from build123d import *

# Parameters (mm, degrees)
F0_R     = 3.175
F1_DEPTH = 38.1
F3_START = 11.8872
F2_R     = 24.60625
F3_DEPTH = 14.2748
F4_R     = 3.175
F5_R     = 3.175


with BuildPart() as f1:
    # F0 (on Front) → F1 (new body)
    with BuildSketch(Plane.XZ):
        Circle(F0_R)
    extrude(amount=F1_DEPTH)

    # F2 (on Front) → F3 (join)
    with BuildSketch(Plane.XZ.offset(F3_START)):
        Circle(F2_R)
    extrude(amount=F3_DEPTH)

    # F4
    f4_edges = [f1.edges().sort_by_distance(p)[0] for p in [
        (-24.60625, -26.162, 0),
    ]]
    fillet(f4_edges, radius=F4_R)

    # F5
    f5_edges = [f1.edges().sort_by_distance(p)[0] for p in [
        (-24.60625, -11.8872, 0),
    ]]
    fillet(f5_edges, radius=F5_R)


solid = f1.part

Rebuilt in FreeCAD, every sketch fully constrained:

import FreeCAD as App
import Part
import Sketcher
Q = App.Units.Quantity


def edges_at(feature, points):
    """Names of the edges that pass closest to the given points."""
    edges = feature.Shape.Edges
    near = lambda p: min(range(len(edges)), key=lambda i: edges[i].distToShape(Part.Vertex(*p))[0])
    return sorted({f"Edge{near(p) + 1}" for p in points})

doc = App.newDocument("Part")
body = doc.addObject("PartDesign::Body", "Body")

# Sketch on XZ plane
sketch1 = body.newObject("Sketcher::SketchObject", "Sketch")
sketch1.AttachmentSupport = (doc.getObject("XZ_Plane"), [""])
sketch1.MapMode = "FlatFace"
sketch1.addGeometry(Part.Circle(App.Vector(0, 0, 0), App.Vector(0, 0, 1), 3.175), False)
sketch1.addConstraint([
    Sketcher.Constraint("Coincident", 0, 3, -1, 1),
    Sketcher.Constraint("Diameter", 0, Q("0.25 in")),
])
pad1 = body.newObject("PartDesign::Pad", "Pad")
pad1.Profile = sketch1
pad1.Length = Q("1.5 in")

# Sketch on XZ plane
sketch2 = body.newObject("Sketcher::SketchObject", "Sketch001")
sketch2.AttachmentSupport = (doc.getObject("XZ_Plane"), [""])
sketch2.MapMode = "FlatFace"
sketch2.AttachmentOffset = App.Placement(App.Vector(0, 0, 0.468 * 25.4), App.Rotation())
sketch2.addGeometry(Part.Circle(App.Vector(0, 0, 0), App.Vector(0, 0, 1), 24.60625), False)
sketch2.addConstraint([
    Sketcher.Constraint("Coincident", 0, 3, -1, 1),
    Sketcher.Constraint("Diameter", 0, Q("1.9375 in")),
])
pad2 = body.newObject("PartDesign::Pad", "Pad001")
pad2.Profile = sketch2
pad2.Length = Q("0.562 in")
doc.recompute()

fillet = body.newObject("PartDesign::Fillet", "Fillet")
fillet.Base = (pad2, edges_at(pad2, [(-24.606, -26.162, 0)]))
fillet.Radius = Q("0.125 in")
doc.recompute()

fillet2 = body.newObject("PartDesign::Fillet", "Fillet001")
fillet2.Base = (fillet, edges_at(fillet, [(-24.606, -11.887, 0)]))
fillet2.Radius = Q("0.125 in")

doc.recompute()
